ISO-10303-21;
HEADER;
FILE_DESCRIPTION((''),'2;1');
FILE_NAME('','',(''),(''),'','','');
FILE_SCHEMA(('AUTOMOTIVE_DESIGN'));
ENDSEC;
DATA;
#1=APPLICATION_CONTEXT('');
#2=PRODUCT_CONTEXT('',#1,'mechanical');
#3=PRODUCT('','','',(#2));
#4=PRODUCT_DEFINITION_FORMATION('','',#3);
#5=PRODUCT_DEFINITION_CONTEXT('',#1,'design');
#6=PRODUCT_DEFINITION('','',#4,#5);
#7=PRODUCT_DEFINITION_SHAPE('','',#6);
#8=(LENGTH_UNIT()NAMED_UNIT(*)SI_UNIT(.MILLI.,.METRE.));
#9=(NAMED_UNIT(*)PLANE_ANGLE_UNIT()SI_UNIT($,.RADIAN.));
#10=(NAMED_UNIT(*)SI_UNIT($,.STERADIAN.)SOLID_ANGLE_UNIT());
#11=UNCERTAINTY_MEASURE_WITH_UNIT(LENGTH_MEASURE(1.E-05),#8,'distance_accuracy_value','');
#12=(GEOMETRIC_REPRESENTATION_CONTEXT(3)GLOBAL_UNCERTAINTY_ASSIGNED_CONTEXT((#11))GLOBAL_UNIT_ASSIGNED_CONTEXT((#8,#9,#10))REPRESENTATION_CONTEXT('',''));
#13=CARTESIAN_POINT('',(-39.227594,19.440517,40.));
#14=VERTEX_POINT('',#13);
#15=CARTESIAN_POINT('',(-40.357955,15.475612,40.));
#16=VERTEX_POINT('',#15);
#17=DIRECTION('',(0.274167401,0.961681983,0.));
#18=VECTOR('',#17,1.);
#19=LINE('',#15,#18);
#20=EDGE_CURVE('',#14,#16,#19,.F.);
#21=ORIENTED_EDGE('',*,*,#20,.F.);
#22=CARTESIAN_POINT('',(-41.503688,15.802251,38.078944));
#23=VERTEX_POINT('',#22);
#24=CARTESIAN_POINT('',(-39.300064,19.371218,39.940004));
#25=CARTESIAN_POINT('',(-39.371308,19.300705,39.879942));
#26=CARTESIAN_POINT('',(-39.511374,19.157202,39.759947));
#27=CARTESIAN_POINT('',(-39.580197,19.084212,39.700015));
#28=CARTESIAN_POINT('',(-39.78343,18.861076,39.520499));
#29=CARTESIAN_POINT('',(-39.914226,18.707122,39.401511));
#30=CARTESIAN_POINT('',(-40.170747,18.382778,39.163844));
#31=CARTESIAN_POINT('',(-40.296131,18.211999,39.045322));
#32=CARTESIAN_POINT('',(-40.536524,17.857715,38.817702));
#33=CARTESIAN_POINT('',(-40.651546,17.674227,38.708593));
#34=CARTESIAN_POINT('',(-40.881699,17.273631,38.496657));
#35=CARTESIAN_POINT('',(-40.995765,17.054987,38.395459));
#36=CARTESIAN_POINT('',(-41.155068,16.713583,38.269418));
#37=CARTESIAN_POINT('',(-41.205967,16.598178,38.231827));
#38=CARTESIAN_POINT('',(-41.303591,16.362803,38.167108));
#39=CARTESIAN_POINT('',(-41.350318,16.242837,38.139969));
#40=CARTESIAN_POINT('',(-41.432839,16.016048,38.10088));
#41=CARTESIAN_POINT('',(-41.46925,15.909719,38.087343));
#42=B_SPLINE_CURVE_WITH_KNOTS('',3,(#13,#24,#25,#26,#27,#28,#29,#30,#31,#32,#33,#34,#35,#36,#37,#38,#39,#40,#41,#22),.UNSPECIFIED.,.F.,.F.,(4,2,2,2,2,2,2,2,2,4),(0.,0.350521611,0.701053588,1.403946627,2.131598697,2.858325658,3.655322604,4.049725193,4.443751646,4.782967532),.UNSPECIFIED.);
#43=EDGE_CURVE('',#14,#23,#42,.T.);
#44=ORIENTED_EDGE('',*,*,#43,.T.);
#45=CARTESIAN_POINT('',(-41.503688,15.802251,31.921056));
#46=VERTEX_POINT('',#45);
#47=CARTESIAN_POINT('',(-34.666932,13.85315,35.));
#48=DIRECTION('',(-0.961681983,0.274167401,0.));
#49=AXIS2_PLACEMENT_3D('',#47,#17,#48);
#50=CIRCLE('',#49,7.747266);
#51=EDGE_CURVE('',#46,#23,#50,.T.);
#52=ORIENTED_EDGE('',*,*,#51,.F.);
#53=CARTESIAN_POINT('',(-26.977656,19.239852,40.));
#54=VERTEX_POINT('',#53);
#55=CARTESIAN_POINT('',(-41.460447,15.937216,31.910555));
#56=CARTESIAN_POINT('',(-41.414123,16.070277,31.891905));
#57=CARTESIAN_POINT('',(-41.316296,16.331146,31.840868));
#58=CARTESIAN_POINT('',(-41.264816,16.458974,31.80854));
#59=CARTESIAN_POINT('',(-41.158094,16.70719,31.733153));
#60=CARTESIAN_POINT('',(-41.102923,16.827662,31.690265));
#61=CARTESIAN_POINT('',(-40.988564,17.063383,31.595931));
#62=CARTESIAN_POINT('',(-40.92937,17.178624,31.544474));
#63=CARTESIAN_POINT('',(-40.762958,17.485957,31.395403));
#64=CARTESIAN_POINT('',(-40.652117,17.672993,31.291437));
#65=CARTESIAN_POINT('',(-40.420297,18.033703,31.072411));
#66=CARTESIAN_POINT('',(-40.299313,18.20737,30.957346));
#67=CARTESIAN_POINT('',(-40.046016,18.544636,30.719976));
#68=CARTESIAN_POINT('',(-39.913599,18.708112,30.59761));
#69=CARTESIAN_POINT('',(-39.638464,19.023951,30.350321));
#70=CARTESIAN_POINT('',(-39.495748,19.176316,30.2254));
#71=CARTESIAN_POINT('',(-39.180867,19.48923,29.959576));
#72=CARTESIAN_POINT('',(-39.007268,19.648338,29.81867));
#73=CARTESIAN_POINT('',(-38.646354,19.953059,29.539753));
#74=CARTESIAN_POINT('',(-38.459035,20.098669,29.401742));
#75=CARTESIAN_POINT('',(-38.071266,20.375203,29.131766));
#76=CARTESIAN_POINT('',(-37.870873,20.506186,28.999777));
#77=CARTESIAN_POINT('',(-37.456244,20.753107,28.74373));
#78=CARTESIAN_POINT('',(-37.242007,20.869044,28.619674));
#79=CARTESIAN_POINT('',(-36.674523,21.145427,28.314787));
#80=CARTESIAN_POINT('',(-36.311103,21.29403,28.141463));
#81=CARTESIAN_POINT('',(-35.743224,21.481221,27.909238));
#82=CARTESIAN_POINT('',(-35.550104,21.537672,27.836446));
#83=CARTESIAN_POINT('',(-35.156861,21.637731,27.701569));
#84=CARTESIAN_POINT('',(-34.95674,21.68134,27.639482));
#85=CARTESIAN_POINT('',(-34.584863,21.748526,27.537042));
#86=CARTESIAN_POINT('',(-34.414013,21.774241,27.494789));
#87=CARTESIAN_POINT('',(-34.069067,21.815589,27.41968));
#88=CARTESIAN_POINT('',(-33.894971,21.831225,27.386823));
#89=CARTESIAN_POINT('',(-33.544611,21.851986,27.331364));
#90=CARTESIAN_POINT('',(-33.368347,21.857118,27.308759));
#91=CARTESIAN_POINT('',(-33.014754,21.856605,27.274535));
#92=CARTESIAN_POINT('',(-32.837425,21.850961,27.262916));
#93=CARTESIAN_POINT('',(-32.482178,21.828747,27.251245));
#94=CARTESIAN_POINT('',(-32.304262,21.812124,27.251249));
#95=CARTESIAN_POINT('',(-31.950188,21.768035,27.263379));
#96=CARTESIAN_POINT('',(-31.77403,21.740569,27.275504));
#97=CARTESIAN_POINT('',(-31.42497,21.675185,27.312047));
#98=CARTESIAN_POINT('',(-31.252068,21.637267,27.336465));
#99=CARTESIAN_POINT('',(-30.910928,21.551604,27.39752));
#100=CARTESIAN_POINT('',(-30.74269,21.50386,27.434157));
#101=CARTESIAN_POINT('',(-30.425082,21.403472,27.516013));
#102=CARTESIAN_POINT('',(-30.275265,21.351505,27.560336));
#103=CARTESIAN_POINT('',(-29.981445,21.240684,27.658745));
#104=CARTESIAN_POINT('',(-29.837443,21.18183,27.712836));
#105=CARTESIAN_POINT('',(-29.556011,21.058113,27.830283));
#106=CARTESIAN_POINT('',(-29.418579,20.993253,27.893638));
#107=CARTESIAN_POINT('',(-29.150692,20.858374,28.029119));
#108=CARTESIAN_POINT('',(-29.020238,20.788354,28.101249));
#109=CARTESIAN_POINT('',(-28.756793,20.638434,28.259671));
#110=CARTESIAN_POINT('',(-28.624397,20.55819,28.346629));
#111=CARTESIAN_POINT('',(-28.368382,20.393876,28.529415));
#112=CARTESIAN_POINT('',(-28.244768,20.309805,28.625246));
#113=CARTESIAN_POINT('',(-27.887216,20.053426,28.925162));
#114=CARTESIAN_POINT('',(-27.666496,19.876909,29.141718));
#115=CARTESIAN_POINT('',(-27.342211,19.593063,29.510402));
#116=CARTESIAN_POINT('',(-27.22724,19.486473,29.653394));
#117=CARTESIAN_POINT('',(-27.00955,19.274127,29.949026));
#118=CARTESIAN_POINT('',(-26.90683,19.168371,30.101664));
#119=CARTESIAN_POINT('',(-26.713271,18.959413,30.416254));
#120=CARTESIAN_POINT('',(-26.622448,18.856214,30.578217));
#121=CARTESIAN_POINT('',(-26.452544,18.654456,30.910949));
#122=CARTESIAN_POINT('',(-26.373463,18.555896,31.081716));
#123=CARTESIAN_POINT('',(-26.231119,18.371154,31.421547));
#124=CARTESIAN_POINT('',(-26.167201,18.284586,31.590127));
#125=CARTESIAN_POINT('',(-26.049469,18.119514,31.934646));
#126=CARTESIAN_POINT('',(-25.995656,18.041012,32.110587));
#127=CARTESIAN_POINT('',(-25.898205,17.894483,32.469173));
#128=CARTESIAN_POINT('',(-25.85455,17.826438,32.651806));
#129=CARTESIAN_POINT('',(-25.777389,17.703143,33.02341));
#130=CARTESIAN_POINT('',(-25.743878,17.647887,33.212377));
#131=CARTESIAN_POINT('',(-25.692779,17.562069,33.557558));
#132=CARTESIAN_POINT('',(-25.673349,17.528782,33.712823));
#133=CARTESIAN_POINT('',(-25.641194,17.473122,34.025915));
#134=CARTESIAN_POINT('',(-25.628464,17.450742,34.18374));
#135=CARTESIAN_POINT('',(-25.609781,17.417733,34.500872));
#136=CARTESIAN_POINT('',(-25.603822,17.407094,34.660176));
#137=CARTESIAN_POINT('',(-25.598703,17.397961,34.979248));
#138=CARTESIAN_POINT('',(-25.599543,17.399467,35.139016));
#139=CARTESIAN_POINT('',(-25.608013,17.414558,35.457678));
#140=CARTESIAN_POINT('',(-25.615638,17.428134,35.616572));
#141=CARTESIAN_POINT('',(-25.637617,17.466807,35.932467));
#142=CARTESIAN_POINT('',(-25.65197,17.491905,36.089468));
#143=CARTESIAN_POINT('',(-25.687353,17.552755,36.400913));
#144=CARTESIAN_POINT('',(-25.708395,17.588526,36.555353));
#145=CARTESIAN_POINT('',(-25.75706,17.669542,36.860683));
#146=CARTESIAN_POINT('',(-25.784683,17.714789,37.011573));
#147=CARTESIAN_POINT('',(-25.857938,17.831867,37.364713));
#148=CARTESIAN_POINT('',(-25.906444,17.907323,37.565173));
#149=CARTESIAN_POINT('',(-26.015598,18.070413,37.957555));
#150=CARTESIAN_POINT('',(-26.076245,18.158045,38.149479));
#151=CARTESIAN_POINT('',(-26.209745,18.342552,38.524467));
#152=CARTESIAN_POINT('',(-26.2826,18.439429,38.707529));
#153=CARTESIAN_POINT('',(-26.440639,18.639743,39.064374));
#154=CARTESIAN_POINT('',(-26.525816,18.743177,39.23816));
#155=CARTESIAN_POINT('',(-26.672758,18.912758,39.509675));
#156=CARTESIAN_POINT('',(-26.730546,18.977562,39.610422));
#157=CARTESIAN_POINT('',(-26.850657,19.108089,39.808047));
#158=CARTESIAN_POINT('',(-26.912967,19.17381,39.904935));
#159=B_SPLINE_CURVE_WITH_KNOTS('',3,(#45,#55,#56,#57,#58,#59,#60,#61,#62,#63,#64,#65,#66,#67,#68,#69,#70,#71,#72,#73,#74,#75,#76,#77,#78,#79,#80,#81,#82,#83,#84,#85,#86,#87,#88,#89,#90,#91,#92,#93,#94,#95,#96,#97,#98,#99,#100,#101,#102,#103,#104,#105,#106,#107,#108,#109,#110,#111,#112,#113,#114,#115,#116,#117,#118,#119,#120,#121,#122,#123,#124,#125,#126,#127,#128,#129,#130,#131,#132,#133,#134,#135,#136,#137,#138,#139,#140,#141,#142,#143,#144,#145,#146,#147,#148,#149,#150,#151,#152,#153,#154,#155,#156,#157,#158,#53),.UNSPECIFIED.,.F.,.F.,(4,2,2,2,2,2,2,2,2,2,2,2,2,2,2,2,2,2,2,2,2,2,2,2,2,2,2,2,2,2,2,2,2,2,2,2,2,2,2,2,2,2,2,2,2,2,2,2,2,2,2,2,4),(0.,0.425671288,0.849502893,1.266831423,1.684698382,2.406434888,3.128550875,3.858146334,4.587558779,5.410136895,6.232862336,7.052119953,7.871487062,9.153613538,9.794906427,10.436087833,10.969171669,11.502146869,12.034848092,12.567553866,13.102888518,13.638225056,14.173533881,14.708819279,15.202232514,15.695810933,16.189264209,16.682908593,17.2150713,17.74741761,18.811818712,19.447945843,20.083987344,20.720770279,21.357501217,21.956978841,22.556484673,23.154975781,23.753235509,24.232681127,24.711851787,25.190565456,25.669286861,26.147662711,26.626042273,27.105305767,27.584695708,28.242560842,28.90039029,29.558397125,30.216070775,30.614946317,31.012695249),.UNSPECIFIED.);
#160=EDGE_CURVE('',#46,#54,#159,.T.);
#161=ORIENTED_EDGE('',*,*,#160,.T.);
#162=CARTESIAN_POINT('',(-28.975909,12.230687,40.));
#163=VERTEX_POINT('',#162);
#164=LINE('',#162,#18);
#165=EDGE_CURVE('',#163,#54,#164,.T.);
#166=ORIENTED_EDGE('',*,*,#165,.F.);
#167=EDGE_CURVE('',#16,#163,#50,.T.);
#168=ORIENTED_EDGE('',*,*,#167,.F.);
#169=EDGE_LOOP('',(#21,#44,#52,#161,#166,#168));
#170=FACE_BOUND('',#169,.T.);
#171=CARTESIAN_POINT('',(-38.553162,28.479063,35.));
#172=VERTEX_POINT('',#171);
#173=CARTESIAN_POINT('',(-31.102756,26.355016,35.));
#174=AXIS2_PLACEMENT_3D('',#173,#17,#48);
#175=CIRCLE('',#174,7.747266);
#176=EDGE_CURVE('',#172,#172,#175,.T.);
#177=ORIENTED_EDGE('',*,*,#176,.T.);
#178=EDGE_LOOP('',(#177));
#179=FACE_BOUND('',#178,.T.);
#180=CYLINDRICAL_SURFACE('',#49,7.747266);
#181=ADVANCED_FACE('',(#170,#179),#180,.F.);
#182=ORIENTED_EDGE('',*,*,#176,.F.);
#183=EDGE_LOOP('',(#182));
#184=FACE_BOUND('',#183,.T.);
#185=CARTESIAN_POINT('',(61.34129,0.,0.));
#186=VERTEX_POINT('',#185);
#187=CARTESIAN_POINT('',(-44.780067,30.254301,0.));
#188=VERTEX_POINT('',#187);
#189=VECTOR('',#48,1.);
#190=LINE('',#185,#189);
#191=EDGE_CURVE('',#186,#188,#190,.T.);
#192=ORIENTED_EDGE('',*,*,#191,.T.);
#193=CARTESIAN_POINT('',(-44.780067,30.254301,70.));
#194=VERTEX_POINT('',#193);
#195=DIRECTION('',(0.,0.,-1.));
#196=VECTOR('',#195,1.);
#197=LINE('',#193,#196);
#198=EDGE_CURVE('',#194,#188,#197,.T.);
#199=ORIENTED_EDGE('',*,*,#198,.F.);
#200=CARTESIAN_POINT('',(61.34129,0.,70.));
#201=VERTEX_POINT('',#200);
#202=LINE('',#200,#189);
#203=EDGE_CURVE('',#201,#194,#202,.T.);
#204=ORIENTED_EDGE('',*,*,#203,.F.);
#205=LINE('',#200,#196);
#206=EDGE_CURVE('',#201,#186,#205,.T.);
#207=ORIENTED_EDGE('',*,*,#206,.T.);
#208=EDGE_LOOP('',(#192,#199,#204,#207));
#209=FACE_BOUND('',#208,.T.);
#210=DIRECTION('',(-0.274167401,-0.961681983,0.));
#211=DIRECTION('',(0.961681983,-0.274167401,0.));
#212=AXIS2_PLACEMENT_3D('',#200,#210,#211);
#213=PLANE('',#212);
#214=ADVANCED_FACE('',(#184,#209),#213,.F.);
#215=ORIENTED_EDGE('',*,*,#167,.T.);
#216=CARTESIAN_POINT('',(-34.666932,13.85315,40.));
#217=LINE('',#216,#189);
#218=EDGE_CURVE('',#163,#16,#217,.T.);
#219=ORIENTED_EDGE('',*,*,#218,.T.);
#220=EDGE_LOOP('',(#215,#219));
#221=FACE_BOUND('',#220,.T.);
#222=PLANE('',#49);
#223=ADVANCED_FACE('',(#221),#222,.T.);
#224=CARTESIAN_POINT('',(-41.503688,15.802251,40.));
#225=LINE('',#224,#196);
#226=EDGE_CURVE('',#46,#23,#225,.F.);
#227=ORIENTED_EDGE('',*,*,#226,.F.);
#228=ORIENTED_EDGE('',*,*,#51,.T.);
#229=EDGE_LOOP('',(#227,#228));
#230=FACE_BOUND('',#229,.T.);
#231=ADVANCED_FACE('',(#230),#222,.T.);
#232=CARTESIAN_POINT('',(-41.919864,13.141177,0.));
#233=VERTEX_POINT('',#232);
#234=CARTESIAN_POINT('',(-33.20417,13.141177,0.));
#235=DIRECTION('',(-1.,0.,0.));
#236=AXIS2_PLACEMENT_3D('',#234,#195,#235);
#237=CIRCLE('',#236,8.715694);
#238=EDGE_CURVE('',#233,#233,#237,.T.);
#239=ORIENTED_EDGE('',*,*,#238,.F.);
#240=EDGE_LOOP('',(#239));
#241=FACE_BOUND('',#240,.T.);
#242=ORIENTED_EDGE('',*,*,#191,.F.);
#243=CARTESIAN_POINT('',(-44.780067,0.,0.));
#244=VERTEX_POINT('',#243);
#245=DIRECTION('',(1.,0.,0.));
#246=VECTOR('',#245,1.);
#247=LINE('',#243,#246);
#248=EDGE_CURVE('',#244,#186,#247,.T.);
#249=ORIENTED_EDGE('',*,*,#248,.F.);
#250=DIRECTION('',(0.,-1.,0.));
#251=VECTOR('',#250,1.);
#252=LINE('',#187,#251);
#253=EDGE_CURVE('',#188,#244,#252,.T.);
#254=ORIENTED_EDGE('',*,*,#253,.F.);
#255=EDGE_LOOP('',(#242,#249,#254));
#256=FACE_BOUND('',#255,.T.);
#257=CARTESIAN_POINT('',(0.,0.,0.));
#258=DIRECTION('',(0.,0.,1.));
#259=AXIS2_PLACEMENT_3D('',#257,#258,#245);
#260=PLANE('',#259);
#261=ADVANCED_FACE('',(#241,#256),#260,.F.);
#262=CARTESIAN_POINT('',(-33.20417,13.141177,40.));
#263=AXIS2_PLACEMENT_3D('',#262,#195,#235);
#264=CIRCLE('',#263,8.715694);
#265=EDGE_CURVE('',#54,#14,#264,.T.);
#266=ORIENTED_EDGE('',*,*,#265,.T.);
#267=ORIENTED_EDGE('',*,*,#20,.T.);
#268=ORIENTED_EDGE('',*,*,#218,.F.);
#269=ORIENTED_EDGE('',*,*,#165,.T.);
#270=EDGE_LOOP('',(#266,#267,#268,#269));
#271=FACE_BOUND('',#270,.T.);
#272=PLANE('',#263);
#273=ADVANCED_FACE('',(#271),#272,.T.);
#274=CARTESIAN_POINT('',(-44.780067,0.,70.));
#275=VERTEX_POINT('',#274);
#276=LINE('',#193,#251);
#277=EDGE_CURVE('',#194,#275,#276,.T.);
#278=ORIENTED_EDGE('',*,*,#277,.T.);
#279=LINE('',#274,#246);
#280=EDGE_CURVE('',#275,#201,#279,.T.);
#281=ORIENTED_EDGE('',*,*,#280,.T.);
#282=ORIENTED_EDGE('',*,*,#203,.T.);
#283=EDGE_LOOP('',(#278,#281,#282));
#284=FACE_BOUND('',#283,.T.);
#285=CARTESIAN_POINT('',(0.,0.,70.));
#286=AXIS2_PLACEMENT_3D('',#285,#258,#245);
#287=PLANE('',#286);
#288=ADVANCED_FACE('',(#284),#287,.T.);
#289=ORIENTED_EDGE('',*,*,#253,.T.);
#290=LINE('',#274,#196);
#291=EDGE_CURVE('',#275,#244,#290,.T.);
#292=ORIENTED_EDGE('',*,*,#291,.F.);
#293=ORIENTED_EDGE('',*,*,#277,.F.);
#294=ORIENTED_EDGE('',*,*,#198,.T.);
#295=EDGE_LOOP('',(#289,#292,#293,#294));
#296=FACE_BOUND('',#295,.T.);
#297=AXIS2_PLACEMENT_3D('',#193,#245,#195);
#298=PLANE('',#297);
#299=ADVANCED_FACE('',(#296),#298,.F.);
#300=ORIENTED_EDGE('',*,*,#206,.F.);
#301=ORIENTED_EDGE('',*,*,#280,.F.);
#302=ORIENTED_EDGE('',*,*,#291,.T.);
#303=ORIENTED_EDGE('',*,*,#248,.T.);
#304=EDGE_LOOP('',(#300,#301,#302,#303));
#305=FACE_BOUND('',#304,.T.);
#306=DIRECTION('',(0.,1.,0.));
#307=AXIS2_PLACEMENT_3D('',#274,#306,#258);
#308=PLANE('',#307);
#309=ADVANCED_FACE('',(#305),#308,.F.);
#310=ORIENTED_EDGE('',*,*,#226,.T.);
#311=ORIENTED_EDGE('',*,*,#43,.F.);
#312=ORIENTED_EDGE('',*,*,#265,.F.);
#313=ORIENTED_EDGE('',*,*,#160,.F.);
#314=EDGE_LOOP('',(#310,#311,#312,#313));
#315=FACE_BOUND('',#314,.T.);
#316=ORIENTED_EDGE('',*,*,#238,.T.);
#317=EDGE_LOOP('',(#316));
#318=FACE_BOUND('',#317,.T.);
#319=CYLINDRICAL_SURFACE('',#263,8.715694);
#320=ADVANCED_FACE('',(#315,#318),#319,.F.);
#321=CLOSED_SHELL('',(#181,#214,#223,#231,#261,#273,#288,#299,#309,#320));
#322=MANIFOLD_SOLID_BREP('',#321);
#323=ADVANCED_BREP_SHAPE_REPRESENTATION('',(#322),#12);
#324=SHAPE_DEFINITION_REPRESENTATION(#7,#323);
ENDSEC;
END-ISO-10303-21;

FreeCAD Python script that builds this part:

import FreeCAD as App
import Part
import Sketcher

doc = App.newDocument("Part")
params = doc.addObject("Spreadsheet::Sheet", "Params")
for row, (alias, value) in enumerate([
    ("pad1_length", "70 mm"),
    ("pocket1_length", "13 mm"),
    ("pocket2_length", "40 mm"),
], start=1):
    params.set(f"A{row}", alias)
    params.set(f"B{row}", "=" + value)
    params.setAlias(f"B{row}", alias)

body = doc.addObject("PartDesign::Body", "Body")

# Sketch on XY plane
sketch1 = body.newObject("Sketcher::SketchObject", "Sketch")
sketch1.AttachmentSupport = (doc.getObject("XY_Plane"), [""])
sketch1.MapMode = "FlatFace"
sketch1.addGeometry([
    Part.LineSegment(App.Vector(-44.780067, 0, 0), App.Vector(61.34129, 0, 0)),
    Part.LineSegment(App.Vector(61.34129, 0, 0), App.Vector(-44.780067, 30.254301, 0)),
    Part.LineSegment(App.Vector(-44.780067, 30.254301, 0), App.Vector(-44.780067, 0, 0)),
], False)
sketch1.addConstraint([
    Sketcher.Constraint("Coincident", 0, 2, 1, 1),
    Sketcher.Constraint("Coincident", 1, 2, 2, 1),
    Sketcher.Constraint("Coincident", 2, 2, 0, 1),
    Sketcher.Constraint("Horizontal", 0),
    Sketcher.Constraint("Vertical", 2),
    Sketcher.Constraint("PointOnObject", 0, 2, -1),
    Sketcher.Constraint("DistanceY", 2, 2, 2, 1, 30.254301),
    Sketcher.Constraint("Distance", 1, 110.34974),
    Sketcher.Constraint("DistanceX", -1, 1, 0, 2, 61.34129),
])
pad1 = body.newObject("PartDesign::Pad", "Pad")
pad1.Profile = sketch1
pad1.setExpression("Length", "Params.pad1_length")

# Sketch on an angled plane
sketch2 = body.newObject("Sketcher::SketchObject", "Sketch001")
sketch2.Placement = App.Placement(App.Vector(4.610888, 16.173358, 0), App.Rotation(App.Vector(0.961681983, -0.274167401, 0), App.Vector(0, 0, -1), App.Vector(0.274167401, 0.961681983, 0), "ZXY"))
sketch2.addGeometry(Part.Circle(App.Vector(-37.136646, -35, 0), App.Vector(0, 0, 1), 7.747266), False)
sketch2.addConstraint([
    Sketcher.Constraint("DistanceY", 0, 3, -1, 1, 35.0),
    Sketcher.Constraint("Diameter", 0, 15.494531),
    Sketcher.Constraint("DistanceX", 0, 3, -1, 1, 37.136646),
])
pocket1 = body.newObject("PartDesign::Pocket", "Pocket")
pocket1.Profile = sketch2
pocket1.setExpression("Length", "Params.pocket1_length")

# Sketch on XY plane
sketch3 = body.newObject("Sketcher::SketchObject", "Sketch002")
sketch3.AttachmentSupport = (doc.getObject("XY_Plane"), [""])
sketch3.MapMode = "FlatFace"
sketch3.addGeometry(Part.Circle(App.Vector(-33.20417, 13.141177, 0), App.Vector(0, 0, 1), 8.715694), False)
sketch3.addConstraint([
    Sketcher.Constraint("Diameter", 0, 17.431387),
    Sketcher.Constraint("DistanceX", 0, 3, -1, 1, 33.20417),
    Sketcher.Constraint("DistanceY", -1, 1, 0, 3, 13.141177),
])
pocket2 = body.newObject("PartDesign::Pocket", "Pocket001")
pocket2.Profile = sketch3
pocket2.setExpression("Length", "Params.pocket2_length")
pocket2.Reversed = True

doc.recompute()
